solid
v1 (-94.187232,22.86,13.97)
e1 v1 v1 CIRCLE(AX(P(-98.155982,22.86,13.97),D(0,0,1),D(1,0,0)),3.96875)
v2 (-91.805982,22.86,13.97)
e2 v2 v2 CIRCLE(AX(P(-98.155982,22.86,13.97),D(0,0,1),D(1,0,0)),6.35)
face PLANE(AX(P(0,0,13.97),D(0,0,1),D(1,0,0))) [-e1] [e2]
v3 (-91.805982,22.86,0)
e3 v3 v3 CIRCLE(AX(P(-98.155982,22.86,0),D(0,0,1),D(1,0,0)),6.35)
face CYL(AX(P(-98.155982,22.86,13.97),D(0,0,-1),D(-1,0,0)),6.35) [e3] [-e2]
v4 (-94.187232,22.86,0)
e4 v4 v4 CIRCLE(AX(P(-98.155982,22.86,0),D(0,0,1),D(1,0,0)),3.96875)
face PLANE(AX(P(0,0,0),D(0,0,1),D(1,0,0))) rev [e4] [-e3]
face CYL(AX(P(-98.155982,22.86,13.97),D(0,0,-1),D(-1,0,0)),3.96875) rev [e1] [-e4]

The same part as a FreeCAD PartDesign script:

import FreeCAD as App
import Part
import Sketcher

V = App.Vector
Q = App.Units.Quantity

doc = App.newDocument("Part")
body = doc.addObject("PartDesign::Body", "Body")

# Sketch on XY plane
sketch1 = body.newObject("Sketcher::SketchObject", "Sketch")
sketch1.AttachmentSupport = (doc.getObject("XY_Plane"), [""])
sketch1.MapMode = "FlatFace"
sketch1.addGeometry(Part.Circle(V(-98.155982, 22.86, 0), V(0, 0, 1), 6.35), False)
sketch1.addGeometry(Part.Circle(V(-98.155982, 22.86, 0), V(0, 0, 1), 3.96875), False)
sketch1.addConstraint(Sketcher.Constraint("Coincident", 1, 3, 0, 3))
sketch1.addConstraint(Sketcher.Constraint("Diameter", 0, Q("0.5 in")))
sketch1.addConstraint(Sketcher.Constraint("Diameter", 1, Q("0.3125 in")))
sketch1.addConstraint(Sketcher.Constraint("DistanceY", -1, 1, 0, 3, Q("0.9 in")))
sketch1.addConstraint(Sketcher.Constraint("DistanceX", 0, 3, -1, 1, Q("98.155982 mm")))
pad1 = body.newObject("PartDesign::Pad", "Pad")
pad1.Profile = sketch1
pad1.Length = Q("0.55 in")

doc.recompute()
